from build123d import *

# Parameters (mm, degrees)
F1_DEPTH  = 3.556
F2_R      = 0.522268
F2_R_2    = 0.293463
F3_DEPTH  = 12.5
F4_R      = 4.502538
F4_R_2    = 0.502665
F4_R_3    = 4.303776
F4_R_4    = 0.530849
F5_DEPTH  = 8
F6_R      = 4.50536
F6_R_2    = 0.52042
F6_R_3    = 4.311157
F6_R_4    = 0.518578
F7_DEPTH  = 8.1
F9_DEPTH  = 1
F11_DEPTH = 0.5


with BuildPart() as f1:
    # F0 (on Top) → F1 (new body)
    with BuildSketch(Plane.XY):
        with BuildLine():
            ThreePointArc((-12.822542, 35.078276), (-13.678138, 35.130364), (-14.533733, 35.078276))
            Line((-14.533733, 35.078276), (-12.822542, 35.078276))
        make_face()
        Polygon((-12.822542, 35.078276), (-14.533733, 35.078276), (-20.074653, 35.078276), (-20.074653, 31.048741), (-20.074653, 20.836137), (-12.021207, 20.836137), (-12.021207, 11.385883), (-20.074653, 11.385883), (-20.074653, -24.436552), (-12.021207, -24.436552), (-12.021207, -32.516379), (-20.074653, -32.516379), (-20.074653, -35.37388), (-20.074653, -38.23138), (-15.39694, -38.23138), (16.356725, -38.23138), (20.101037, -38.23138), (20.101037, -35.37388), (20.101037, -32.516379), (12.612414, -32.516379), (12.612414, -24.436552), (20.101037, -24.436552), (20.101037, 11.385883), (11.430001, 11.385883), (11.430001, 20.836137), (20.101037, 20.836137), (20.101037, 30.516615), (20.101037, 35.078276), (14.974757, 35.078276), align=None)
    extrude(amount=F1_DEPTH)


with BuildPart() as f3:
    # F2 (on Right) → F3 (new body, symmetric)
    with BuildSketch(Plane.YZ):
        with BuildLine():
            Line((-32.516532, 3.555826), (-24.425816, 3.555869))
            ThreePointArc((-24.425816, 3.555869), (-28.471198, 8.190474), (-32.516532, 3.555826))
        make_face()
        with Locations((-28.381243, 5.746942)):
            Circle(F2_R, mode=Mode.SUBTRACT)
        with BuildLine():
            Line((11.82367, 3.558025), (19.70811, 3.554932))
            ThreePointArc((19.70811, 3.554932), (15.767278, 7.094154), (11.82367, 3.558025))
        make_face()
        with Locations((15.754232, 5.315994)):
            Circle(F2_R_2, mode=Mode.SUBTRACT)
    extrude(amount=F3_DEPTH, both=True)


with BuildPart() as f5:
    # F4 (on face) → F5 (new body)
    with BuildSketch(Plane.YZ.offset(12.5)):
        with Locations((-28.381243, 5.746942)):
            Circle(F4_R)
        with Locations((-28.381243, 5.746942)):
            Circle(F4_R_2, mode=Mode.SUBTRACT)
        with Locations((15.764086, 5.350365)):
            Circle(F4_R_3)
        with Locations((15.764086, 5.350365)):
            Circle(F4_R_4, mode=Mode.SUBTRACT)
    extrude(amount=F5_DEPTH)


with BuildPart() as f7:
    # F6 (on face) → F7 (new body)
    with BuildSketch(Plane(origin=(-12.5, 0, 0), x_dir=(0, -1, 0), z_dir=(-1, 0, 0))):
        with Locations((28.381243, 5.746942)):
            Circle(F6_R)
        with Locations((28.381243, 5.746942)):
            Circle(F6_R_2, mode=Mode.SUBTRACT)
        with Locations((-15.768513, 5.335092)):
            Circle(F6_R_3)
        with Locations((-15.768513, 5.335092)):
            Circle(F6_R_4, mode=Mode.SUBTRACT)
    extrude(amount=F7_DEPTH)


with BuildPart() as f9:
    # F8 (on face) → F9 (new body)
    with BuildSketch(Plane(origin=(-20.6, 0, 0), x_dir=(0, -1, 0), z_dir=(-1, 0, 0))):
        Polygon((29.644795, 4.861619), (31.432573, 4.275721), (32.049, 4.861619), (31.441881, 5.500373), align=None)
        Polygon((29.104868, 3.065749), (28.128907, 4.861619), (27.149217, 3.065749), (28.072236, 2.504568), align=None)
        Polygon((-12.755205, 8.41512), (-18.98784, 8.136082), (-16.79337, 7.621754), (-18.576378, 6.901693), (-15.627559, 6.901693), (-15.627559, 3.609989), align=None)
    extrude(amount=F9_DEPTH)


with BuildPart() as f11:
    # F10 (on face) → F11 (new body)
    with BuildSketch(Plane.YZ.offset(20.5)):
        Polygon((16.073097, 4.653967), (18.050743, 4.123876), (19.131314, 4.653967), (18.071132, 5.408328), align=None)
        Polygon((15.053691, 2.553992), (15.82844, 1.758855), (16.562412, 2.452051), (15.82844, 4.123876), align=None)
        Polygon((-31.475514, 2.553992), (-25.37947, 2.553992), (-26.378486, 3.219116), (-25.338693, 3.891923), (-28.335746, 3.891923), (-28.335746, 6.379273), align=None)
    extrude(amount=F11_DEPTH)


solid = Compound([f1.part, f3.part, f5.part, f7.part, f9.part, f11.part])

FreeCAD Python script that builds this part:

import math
import FreeCAD as App
import Part
import Sketcher

V = App.Vector


def add_polygon(sketch, points):
    """Adds a closed chain of lines whose ends are joined by coincident constraints."""
    first, n = sketch.GeometryCount, len(points)
    for a, b in zip(points, points[1:] + points[:1]):
        sketch.addGeometry(Part.LineSegment(App.Vector(*a, 0), App.Vector(*b, 0)), False)
    for i in range(n):
        sketch.addConstraint(Sketcher.Constraint("Coincident", first + i, 2, first + (i + 1) % n, 1))

doc = App.newDocument("Part")
body = doc.addObject("PartDesign::Body", "Body")

sketch1 = body.newObject("Sketcher::SketchObject", "Sketch")
sketch1.AttachmentSupport = (doc.getObject("XY_Plane"), [""])
sketch1.MapMode = "FlatFace"
sketch1.addGeometry(Part.ArcOfCircle(Part.Circle(V(-13.7, 28.1, 0), V(0, 0, 1), 7.1), math.radians(83.03), math.radians(96.97)), False)
sketch1.addGeometry(Part.LineSegment(V(-14.5, 35.1, 0), V(-20.1, 35.1, 0)), False)
sketch1.addGeometry(Part.LineSegment(V(-20.1, 35.1, 0), V(-20.1, 20.8, 0)), False)
sketch1.addGeometry(Part.LineSegment(V(-20.1, 20.8, 0), V(-12, 20.8, 0)), False)
sketch1.addGeometry(Part.LineSegment(V(-12, 20.8, 0), V(-12, 11.4, 0)), False)
sketch1.addGeometry(Part.LineSegment(V(-12, 11.4, 0), V(-20.1, 11.4, 0)), False)
sketch1.addGeometry(Part.LineSegment(V(-20.1, 11.4, 0), V(-20.1, -24.4, 0)), False)
sketch1.addGeometry(Part.LineSegment(V(-20.1, -24.4, 0), V(-12, -24.4, 0)), False)
sketch1.addGeometry(Part.LineSegment(V(-12, -24.4, 0), V(-12, -32.5, 0)), False)
sketch1.addGeometry(Part.LineSegment(V(-12, -32.5, 0), V(-20.1, -32.5, 0)), False)
sketch1.addGeometry(Part.LineSegment(V(-20.1, -32.5, 0), V(-20.1, -38.2, 0)), False)
sketch1.addGeometry(Part.LineSegment(V(-20.1, -38.2, 0), V(20.1, -38.2, 0)), False)
sketch1.addGeometry(Part.LineSegment(V(20.1, -38.2, 0), V(20.1, -32.5, 0)), False)
sketch1.addGeometry(Part.LineSegment(V(20.1, -32.5, 0), V(12.6, -32.5, 0)), False)
sketch1.addGeometry(Part.LineSegment(V(12.6, -32.5, 0), V(12.6, -24.4, 0)), False)
sketch1.addGeometry(Part.LineSegment(V(12.6, -24.4, 0), V(20.1, -24.4, 0)), False)
sketch1.addGeometry(Part.LineSegment(V(20.1, -24.4, 0), V(20.1, 11.4, 0)), False)
sketch1.addGeometry(Part.LineSegment(V(20.1, 11.4, 0), V(11.4, 11.4, 0)), False)
sketch1.addGeometry(Part.LineSegment(V(11.4, 11.4, 0), V(11.4, 20.8, 0)), False)
sketch1.addGeometry(Part.LineSegment(V(11.4, 20.8, 0), V(20.1, 20.8, 0)), False)
sketch1.addGeometry(Part.LineSegment(V(20.1, 20.8, 0), V(20.1, 35.1, 0)), False)
sketch1.addGeometry(Part.LineSegment(V(20.1, 35.1, 0), V(-12.8, 35.1, 0)), False)
sketch1.addConstraint(Sketcher.Constraint("Coincident", 0, 2, 1, 1))
sketch1.addConstraint(Sketcher.Constraint("Coincident", 1, 2, 2, 1))
sketch1.addConstraint(Sketcher.Constraint("Coincident", 2, 2, 3, 1))
sketch1.addConstraint(Sketcher.Constraint("Coincident", 3, 2, 4, 1))
sketch1.addConstraint(Sketcher.Constraint("Coincident", 4, 2, 5, 1))
sketch1.addConstraint(Sketcher.Constraint("Coincident", 5, 2, 6, 1))
sketch1.addConstraint(Sketcher.Constraint("Coincident", 6, 2, 7, 1))
sketch1.addConstraint(Sketcher.Constraint("Coincident", 7, 2, 8, 1))
sketch1.addConstraint(Sketcher.Constraint("Coincident", 8, 2, 9, 1))
sketch1.addConstraint(Sketcher.Constraint("Coincident", 9, 2, 10, 1))
sketch1.addConstraint(Sketcher.Constraint("Coincident", 10, 2, 11, 1))
sketch1.addConstraint(Sketcher.Constraint("Coincident", 11, 2, 12, 1))
sketch1.addConstraint(Sketcher.Constraint("Coincident", 12, 2, 13, 1))
sketch1.addConstraint(Sketcher.Constraint("Coincident", 13, 2, 14, 1))
sketch1.addConstraint(Sketcher.Constraint("Coincident", 14, 2, 15, 1))
sketch1.addConstraint(Sketcher.Constraint("Coincident", 15, 2, 16, 1))
sketch1.addConstraint(Sketcher.Constraint("Coincident", 16, 2, 17, 1))
sketch1.addConstraint(Sketcher.Constraint("Coincident", 17, 2, 18, 1))
sketch1.addConstraint(Sketcher.Constraint("Coincident", 18, 2, 19, 1))
sketch1.addConstraint(Sketcher.Constraint("Coincident", 19, 2, 20, 1))
sketch1.addConstraint(Sketcher.Constraint("Coincident", 20, 2, 21, 1))
sketch1.addConstraint(Sketcher.Constraint("Coincident", 21, 2, 0, 1))
sketch1.addConstraint(Sketcher.Constraint("Horizontal", 1))
sketch1.addConstraint(Sketcher.Constraint("Vertical", 2))
sketch1.addConstraint(Sketcher.Constraint("Horizontal", 3))
sketch1.addConstraint(Sketcher.Constraint("Vertical", 4))
sketch1.addConstraint(Sketcher.Constraint("Horizontal", 5))
sketch1.addConstraint(Sketcher.Constraint("Vertical", 6))
sketch1.addConstraint(Sketcher.Constraint("Horizontal", 7))
sketch1.addConstraint(Sketcher.Constraint("Vertical", 8))
sketch1.addConstraint(Sketcher.Constraint("Horizontal", 9))
sketch1.addConstraint(Sketcher.Constraint("Vertical", 10))
sketch1.addConstraint(Sketcher.Constraint("Horizontal", 11))
sketch1.addConstraint(Sketcher.Constraint("Vertical", 12))
sketch1.addConstraint(Sketcher.Constraint("Horizontal", 13))
sketch1.addConstraint(Sketcher.Constraint("Vertical", 14))
sketch1.addConstraint(Sketcher.Constraint("Horizontal", 15))
sketch1.addConstraint(Sketcher.Constraint("Vertical", 16))
sketch1.addConstraint(Sketcher.Constraint("Horizontal", 17))
sketch1.addConstraint(Sketcher.Constraint("Vertical", 18))
sketch1.addConstraint(Sketcher.Constraint("Horizontal", 19))
sketch1.addConstraint(Sketcher.Constraint("Vertical", 20))
sketch1.addConstraint(Sketcher.Constraint("Horizontal", 21))
sketch1.addConstraint(Sketcher.Constraint("Horizontal", 9, 2, 12, 2))
sketch1.addConstraint(Sketcher.Constraint("Horizontal", 7, 2, 14, 2))
sketch1.addConstraint(Sketcher.Constraint("Horizontal", 5, 2, 16, 2))
sketch1.addConstraint(Sketcher.Constraint("Horizontal", 3, 2, 18, 2))
sketch1.addConstraint(Sketcher.Constraint("Horizontal", 1, 2, 20, 2))
sketch1.addConstraint(Sketcher.Constraint("Vertical", 2, 2, 5, 2))
sketch1.addConstraint(Sketcher.Constraint("Vertical", 4, 2, 7, 2))
sketch1.addConstraint(Sketcher.Constraint("Vertical", 6, 2, 9, 2))
sketch1.addConstraint(Sketcher.Constraint("Vertical", 12, 2, 15, 2))
sketch1.addConstraint(Sketcher.Constraint("Vertical", 16, 2, 19, 2))
sketch1.addConstraint(Sketcher.Constraint("DistanceY", 10, 2, 10, 1, 5.715001))
sketch1.addConstraint(Sketcher.Constraint("DistanceX", -1, 1, 17, 2, 11.430001))
sketch1.addConstraint(Sketcher.Constraint("Radius", 0, 7.053034))
sketch1.addConstraint(Sketcher.Constraint("DistanceX", 1, 2, 1, 1, 5.54092))
sketch1.addConstraint(Sketcher.Constraint("DistanceX", 11, 1, 11, 2, 40.17569))
sketch1.addConstraint(Sketcher.Constraint("DistanceX", 21, 2, 21, 1, 32.923579))
sketch1.addConstraint(Sketcher.Constraint("DistanceY", 2, 2, 2, 1, 14.242139))
sketch1.addConstraint(Sketcher.Constraint("DistanceX", 3, 1, 3, 2, 8.053446))
sketch1.addConstraint(Sketcher.Constraint("DistanceX", 13, 2, 13, 1, 7.488623))
sketch1.addConstraint(Sketcher.Constraint("DistanceX", 17, 2, 17, 1, 8.671036))
sketch1.addConstraint(Sketcher.Constraint("DistanceY", 4, 2, 4, 1, 9.450254))
sketch1.addConstraint(Sketcher.Constraint("DistanceY", 6, 2, 6, 1, 35.822435))
sketch1.addConstraint(Sketcher.Constraint("DistanceY", 8, 2, 8, 1, 8.079827))
sketch1.addConstraint(Sketcher.Constraint("DistanceY", -1, 1, 0, 3, 28.07733))
pad1 = body.newObject("PartDesign::Pad", "Pad")
pad1.Profile = sketch1
pad1.Length = 3.556
body2 = doc.addObject("PartDesign::Body", "Body001")
body2.AllowCompound = True

sketch2 = body2.newObject("Sketcher::SketchObject", "Sketch001")
sketch2.AttachmentSupport = (doc.getObject("YZ_Plane001"), [""])
sketch2.MapMode = "FlatFace"
sketch2.addGeometry(Part.LineSegment(V(-32.52, 3.56, 0), V(-24.43, 3.56, 0)), False)
sketch2.addGeometry(Part.ArcOfCircle(Part.Circle(V(-28.47, 4.11, 0), V(0, 0, 1), 4.08), math.radians(-8), math.radians(188)), False)
sketch2.addGeometry(Part.Circle(V(-28.38, 5.75, 0), V(0, 0, 1), 0.52), False)
sketch2.addGeometry(Part.LineSegment(V(11.82, 3.56, 0), V(19.71, 3.55, 0)), False)
sketch2.addGeometry(Part.ArcOfCircle(Part.Circle(V(15.77, 3.13, 0), V(0, 0, 1), 3.97), math.radians(6), math.radians(174)), False)
sketch2.addGeometry(Part.Circle(V(15.75, 5.32, 0), V(0, 0, 1), 0.29), False)
sketch2.addConstraint(Sketcher.Constraint("Coincident", 0, 1, 1, 2))
sketch2.addConstraint(Sketcher.Constraint("Coincident", 1, 1, 0, 2))
sketch2.addConstraint(Sketcher.Constraint("Coincident", 3, 1, 4, 2))
sketch2.addConstraint(Sketcher.Constraint("Coincident", 4, 1, 3, 2))
sketch2.addConstraint(Sketcher.Constraint("Radius", 1, 4.082819))
sketch2.addConstraint(Sketcher.Constraint("Radius", 4, 3.965351))
sketch2.addConstraint(Sketcher.Constraint("Diameter", 2, 1.044536))
sketch2.addConstraint(Sketcher.Constraint("Diameter", 5, 0.586926))
sketch2.addConstraint(Sketcher.Constraint("DistanceX", 1, 3, 4, 3, 44.236899))
sketch2.addConstraint(Sketcher.Constraint("Distance", 3, 7.884441))
sketch2.addConstraint(Sketcher.Constraint("DistanceY", -1, 1, 2, 3, 5.746942))
sketch2.addConstraint(Sketcher.Constraint("DistanceX", 0, 1, -1, 1, 32.516532))
sketch2.addConstraint(Sketcher.Constraint("DistanceY", -1, 1, 1, 1, 3.555869))
sketch2.addConstraint(Sketcher.Constraint("DistanceX", -1, 1, 3, 1, 11.82367))
sketch2.addConstraint(Sketcher.Constraint("DistanceY", -1, 1, 4, 1, 3.554932))
sketch2.addConstraint(Sketcher.Constraint("DistanceY", 4, 3, 2, 3, 2.618138))
sketch2.addConstraint(Sketcher.Constraint("DistanceY", 4, 3, 1, 3, 0.978851))
sketch2.addConstraint(Sketcher.Constraint("DistanceX", 5, 3, 4, 3, 0.01149))
sketch2.addConstraint(Sketcher.Constraint("DistanceY", 4, 3, 5, 3, 2.18719))
sketch2.addConstraint(Sketcher.Constraint("DistanceX", 0, 1, 2, 3, 4.135289))
pad2 = body2.newObject("PartDesign::Pad", "Pad001")
pad2.Profile = sketch2
pad2.Length = 25
pad2.Midplane = True
body3 = doc.addObject("PartDesign::Body", "Body002")
body3.AllowCompound = True

sketch3 = body3.newObject("Sketcher::SketchObject", "Sketch002")
sketch3.AttachmentSupport = (doc.getObject("YZ_Plane002"), [""])
sketch3.MapMode = "FlatFace"
sketch3.AttachmentOffset = App.Placement(V(0, 0, 12.5), App.Rotation())
sketch3.addGeometry(Part.Circle(V(-28.4, 5.7, 0), V(0, 0, 1), 4.5), False)
sketch3.addGeometry(Part.Circle(V(-28.4, 5.7, 0), V(0, 0, 1), 0.5), False)
sketch3.addGeometry(Part.Circle(V(15.8, 5.4, 0), V(0, 0, 1), 4.3), False)
sketch3.addGeometry(Part.Circle(V(15.8, 5.4, 0), V(0, 0, 1), 0.5), False)
sketch3.addConstraint(Sketcher.Constraint("Coincident", 1, 3, 0, 3))
sketch3.addConstraint(Sketcher.Constraint("Coincident", 3, 3, 2, 3))
sketch3.addConstraint(Sketcher.Constraint("Diameter", 1, 1.00533))
sketch3.addConstraint(Sketcher.Constraint("Diameter", 0, 9.005076))
sketch3.addConstraint(Sketcher.Constraint("Diameter", 2, 8.607552))
sketch3.addConstraint(Sketcher.Constraint("Diameter", 3, 1.061698))
sketch3.addConstraint(Sketcher.Constraint("DistanceY", -1, 1, 0, 3, 5.746942))
sketch3.addConstraint(Sketcher.Constraint("DistanceX", 0, 3, 2, 3, 44.145329))
sketch3.addConstraint(Sketcher.Constraint("DistanceX", 0, 3, -1, 1, 28.381243))
sketch3.addConstraint(Sketcher.Constraint("DistanceY", -1, 1, 2, 3, 5.350365))
pad3 = body3.newObject("PartDesign::Pad", "Pad002")
pad3.Profile = sketch3
pad3.Length = 8
body4 = doc.addObject("PartDesign::Body", "Body003")
body4.AllowCompound = True

sketch4 = body4.newObject("Sketcher::SketchObject", "Sketch003")
sketch4.AttachmentSupport = (doc.getObject("YZ_Plane003"), [""])
sketch4.MapMode = "FlatFace"
sketch4.AttachmentOffset = App.Placement(V(0, 0, -12.5), App.Rotation())
sketch4.addGeometry(Part.Circle(V(-28.4, 5.7, 0), V(0, 0, 1), 4.5), False)
sketch4.addGeometry(Part.Circle(V(-28.4, 5.7, 0), V(0, 0, 1), 0.5), False)
sketch4.addGeometry(Part.Circle(V(15.8, 5.3, 0), V(0, 0, 1), 4.3), False)
sketch4.addGeometry(Part.Circle(V(15.8, 5.3, 0), V(0, 0, 1), 0.5), False)
sketch4.addConstraint(Sketcher.Constraint("Coincident", 1, 3, 0, 3))
sketch4.addConstraint(Sketcher.Constraint("Coincident", 3, 3, 2, 3))
sketch4.addConstraint(Sketcher.Constraint("Diameter", 0, 9.01072))
sketch4.addConstraint(Sketcher.Constraint("Diameter", 1, 1.04084))
sketch4.addConstraint(Sketcher.Constraint("Diameter", 2, 8.622314))
sketch4.addConstraint(Sketcher.Constraint("Diameter", 3, 1.037156))
sketch4.addConstraint(Sketcher.Constraint("DistanceY", -1, 1, 0, 3, 5.746942))
sketch4.addConstraint(Sketcher.Constraint("DistanceY", 2, 3, 0, 3, 0.41185))
sketch4.addConstraint(Sketcher.Constraint("DistanceX", 0, 3, -1, 1, 28.381243))
sketch4.addConstraint(Sketcher.Constraint("DistanceX", -1, 1, 2, 3, 15.768513))
pad4 = body4.newObject("PartDesign::Pad", "Pad003")
pad4.Profile = sketch4
pad4.Length = 8.1
pad4.Reversed = True
body5 = doc.addObject("PartDesign::Body", "Body004")
body5.AllowCompound = True

sketch5 = body5.newObject("Sketcher::SketchObject", "Sketch004")
sketch5.AttachmentSupport = (doc.getObject("YZ_Plane004"), [""])
sketch5.MapMode = "FlatFace"
sketch5.AttachmentOffset = App.Placement(V(0, 0, -20.6), App.Rotation())
add_polygon(sketch5, [(-29.6, 4.9), (-31.4, 4.3), (-32, 4.9), (-31.4, 5.5)])
add_polygon(sketch5, [(-29.1, 3.1), (-28.1, 4.9), (-27.1, 3.1), (-28.1, 2.5)])
add_polygon(sketch5, [(12.8, 8.4), (19, 8.1), (16.8, 7.6), (18.6, 6.9), (15.6, 6.9), (15.6, 3.6)])
sketch5.addConstraint(Sketcher.Constraint("Horizontal", 11))
sketch5.addConstraint(Sketcher.Constraint("Vertical", 12))
sketch5.addConstraint(Sketcher.Constraint("Perpendicular", 1, 2))
sketch5.addConstraint(Sketcher.Constraint("Perpendicular", 4, 7))
sketch5.addConstraint(Sketcher.Constraint("Horizontal", 1, 2, 3, 2))
sketch5.addConstraint(Sketcher.Constraint("Horizontal", 3, 2, 4, 2))
sketch5.addConstraint(Sketcher.Constraint("Horizontal", 5, 2, 7, 2))
sketch5.addConstraint(Sketcher.Constraint("DistanceX", 1, 2, -1, 1, 32.049))
sketch5.addConstraint(Sketcher.Constraint("DistanceX", 11, 2, 11, 1, 2.948819))
sketch5.addConstraint(Sketcher.Constraint("DistanceY", 0, 2, 1, 2, 0.585898))
sketch5.addConstraint(Sketcher.Constraint("Distance", 2, 0.881249))
sketch5.addConstraint(Sketcher.Constraint("Distance", 3, 1.90723))
sketch5.addConstraint(Sketcher.Constraint("Distance", 4, 2.04393))
sketch5.addConstraint(Sketcher.Constraint("Distance", 8, 6.238878))
sketch5.addConstraint(Sketcher.Constraint("DistanceY", 12, 2, 12, 1, 3.291704))
sketch5.addConstraint(Sketcher.Constraint("DistanceY", -1, 1, 0, 2, 4.275721))
sketch5.addConstraint(Sketcher.Constraint("DistanceX", 2, 2, -1, 1, 31.441881))
sketch5.addConstraint(Sketcher.Constraint("DistanceY", -1, 1, 5, 2, 3.065749))
sketch5.addConstraint(Sketcher.Constraint("DistanceX", 7, 2, -1, 1, 29.104868))
sketch5.addConstraint(Sketcher.Constraint("DistanceX", -1, 1, 8, 2, 18.98784))
sketch5.addConstraint(Sketcher.Constraint("DistanceX", -1, 1, 9, 2, 16.79337))
sketch5.addConstraint(Sketcher.Constraint("DistanceX", -1, 1, 11, 2, 15.627559))
sketch5.addConstraint(Sketcher.Constraint("DistanceY", -1, 1, 12, 2, 3.609989))
sketch5.addConstraint(Sketcher.Constraint("DistanceY", -1, 1, 13, 2, 8.41512))
sketch5.addConstraint(Sketcher.Constraint("DistanceX", 4, 2, 5, 2, 0.97969))
sketch5.addConstraint(Sketcher.Constraint("DistanceX", 6, 2, 5, 2, 0.923019))
sketch5.addConstraint(Sketcher.Constraint("DistanceY", 10, 2, 8, 2, 1.234389))
sketch5.addConstraint(Sketcher.Constraint("DistanceY", 10, 2, 9, 2, 0.720061))
pad5 = body5.newObject("PartDesign::Pad", "Pad004")
pad5.Profile = sketch5
pad5.Length = 1
pad5.Reversed = True
body6 = doc.addObject("PartDesign::Body", "Body005")
body6.AllowCompound = True

sketch6 = body6.newObject("Sketcher::SketchObject", "Sketch005")
sketch6.AttachmentSupport = (doc.getObject("YZ_Plane005"), [""])
sketch6.MapMode = "FlatFace"
sketch6.AttachmentOffset = App.Placement(V(0, 0, 20.5), App.Rotation())
add_polygon(sketch6, [(16.1, 4.7), (18.1, 4.1), (19.1, 4.7), (18.1, 5.4)])
add_polygon(sketch6, [(15.1, 2.6), (15.8, 1.8), (16.6, 2.5), (15.8, 4.1)])
add_polygon(sketch6, [(-31.5, 2.6), (-25.4, 2.6), (-26.4, 3.2), (-25.3, 3.9), (-28.3, 3.9), (-28.3, 6.4)])
sketch6.addConstraint(Sketcher.Constraint("Horizontal", 8))
sketch6.addConstraint(Sketcher.Constraint("Horizontal", 11))
sketch6.addConstraint(Sketcher.Constraint("Vertical", 12))
sketch6.addConstraint(Sketcher.Constraint("Horizontal", 1, 2, 3, 2))
sketch6.addConstraint(Sketcher.Constraint("Horizontal", 0, 2, 6, 2))
sketch6.addConstraint(Sketcher.Constraint("Horizontal", 7, 2, 8, 2))
sketch6.addConstraint(Sketcher.Constraint("Vertical", 4, 2, 6, 2))
sketch6.addConstraint(Sketcher.Constraint("DistanceY", 12, 1, 12, 2, 2.48735))
sketch6.addConstraint(Sketcher.Constraint("Distance", 1, 1.203591))
sketch6.addConstraint(Sketcher.Constraint("Distance", 2, 1.301171))
sketch6.addConstraint(Sketcher.Constraint("Distance", 4, 1.110171))
sketch6.addConstraint(Sketcher.Constraint("Distance", 5, 1.009572))
sketch6.addConstraint(Sketcher.Constraint("Distance", 7, 1.750649))
sketch6.addConstraint(Sketcher.Constraint("Distance", 13, 4.94883))
sketch6.addConstraint(Sketcher.Constraint("DistanceX", 8, 1, 8, 2, 6.096044))
sketch6.addConstraint(Sketcher.Constraint("DistanceX", 11, 2, 11, 1, 2.997053))
sketch6.addConstraint(Sketcher.Constraint("DistanceX", -1, 1, 2, 2, 18.071132))
sketch6.addConstraint(Sketcher.Constraint("DistanceX", -1, 1, 4, 2, 15.82844))
sketch6.addConstraint(Sketcher.Constraint("DistanceX", -1, 1, 5, 2, 16.562412))
sketch6.addConstraint(Sketcher.Constraint("DistanceY", -1, 1, 5, 2, 2.452051))
sketch6.addConstraint(Sketcher.Constraint("DistanceX", -1, 1, 7, 2, 15.053691))
sketch6.addConstraint(Sketcher.Constraint("DistanceX", 8, 2, -1, 1, 25.37947))
sketch6.addConstraint(Sketcher.Constraint("DistanceX", 0, 2, 1, 2, 1.080571))
sketch6.addConstraint(Sketcher.Constraint("DistanceX", 0, 2, 2, 2, 0.020389))
sketch6.addConstraint(Sketcher.Constraint("DistanceY", 9, 2, 6, 2, 0.90476))
sketch6.addConstraint(Sketcher.Constraint("DistanceY", 8, 2, 10, 2, 1.337931))
sketch6.addConstraint(Sketcher.Constraint("DistanceX", 11, 2, 9, 2, 1.95726))
sketch6.addConstraint(Sketcher.Constraint("Distance", 0, 2.047457))
pad6 = body6.newObject("PartDesign::Pad", "Pad005")
pad6.Profile = sketch6
pad6.Length = 0.5

doc.recompute()
